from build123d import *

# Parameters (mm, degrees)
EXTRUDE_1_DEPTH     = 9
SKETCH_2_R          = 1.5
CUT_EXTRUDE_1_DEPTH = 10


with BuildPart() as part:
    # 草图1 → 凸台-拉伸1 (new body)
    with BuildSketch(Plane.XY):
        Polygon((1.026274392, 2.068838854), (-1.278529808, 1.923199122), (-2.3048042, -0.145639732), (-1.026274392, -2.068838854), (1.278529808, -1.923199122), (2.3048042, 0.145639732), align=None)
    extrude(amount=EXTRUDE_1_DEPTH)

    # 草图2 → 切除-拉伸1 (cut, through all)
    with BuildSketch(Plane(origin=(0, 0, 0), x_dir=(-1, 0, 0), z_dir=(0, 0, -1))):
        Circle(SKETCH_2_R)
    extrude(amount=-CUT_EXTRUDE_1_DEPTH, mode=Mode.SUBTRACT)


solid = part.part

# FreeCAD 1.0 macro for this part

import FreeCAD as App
import Part
import Sketcher

V = App.Vector
Q = App.Units.Quantity


def add_polygon(sketch, points):
    """Adds a closed chain of lines whose ends are joined by coincident constraints."""
    first, n = sketch.GeometryCount, len(points)
    for a, b in zip(points, points[1:] + points[:1]):
        sketch.addGeometry(Part.LineSegment(App.Vector(*a, 0), App.Vector(*b, 0)), False)
    for i in range(n):
        sketch.addConstraint(Sketcher.Constraint("Coincident", first + i, 2, first + (i + 1) % n, 1))

doc = App.newDocument("Part")
body = doc.addObject("PartDesign::Body", "Body")

sketch1 = body.newObject("Sketcher::SketchObject", "Sketch")
sketch1.AttachmentSupport = (doc.getObject("XY_Plane"), [""])
sketch1.MapMode = "FlatFace"
add_polygon(sketch1, [(1, 2.1), (-1.3, 1.9), (-2.3, -0.1), (-1, -2.1), (1.3, -1.9), (2.3, 0.1)])
sketch1.addConstraint([
    Sketcher.Constraint("Symmetric", 0, 2, 3, 2, -1, 1),
    Sketcher.Constraint("Symmetric", 1, 2, 4, 2, -1, 1),
    Sketcher.Constraint("Symmetric", 2, 2, 5, 2, -1, 1),
    Sketcher.Constraint("Equal", 0, 1),
    Sketcher.Constraint("Equal", 1, 2),
    Sketcher.Constraint("Distance", 0, Q("2.309401 mm")),
    Sketcher.Constraint("DistanceY", -1, 1, 0, 2, Q("1.923199 mm")),
    Sketcher.Constraint("DistanceY", 2, 2, 1, 2, Q("1.923199 mm")),
    Sketcher.Constraint("DistanceX", 0, 2, -1, 1, Q("1.27853 mm")),
])
pad1 = body.newObject("PartDesign::Pad", "Pad")
pad1.Profile = sketch1
pad1.Length = 9

sketch2 = body.newObject("Sketcher::SketchObject", "Sketch001")
sketch2.AttachmentSupport = (doc.getObject("XY_Plane"), [""])
sketch2.MapMode = "FlatFace"
sketch2.addGeometry(Part.Circle(V(0, 0, 0), V(0, 0, 1), 1.5), False)
sketch2.addConstraint([
    Sketcher.Constraint("Coincident", 0, 3, -1, 1),
    Sketcher.Constraint("Diameter", 0, Q("3 mm")),
])
pocket1 = body.newObject("PartDesign::Pocket", "Pocket")
pocket1.Profile = sketch2
pocket1.Type = "ThroughAll"
pocket1.Reversed = True

doc.recompute()
